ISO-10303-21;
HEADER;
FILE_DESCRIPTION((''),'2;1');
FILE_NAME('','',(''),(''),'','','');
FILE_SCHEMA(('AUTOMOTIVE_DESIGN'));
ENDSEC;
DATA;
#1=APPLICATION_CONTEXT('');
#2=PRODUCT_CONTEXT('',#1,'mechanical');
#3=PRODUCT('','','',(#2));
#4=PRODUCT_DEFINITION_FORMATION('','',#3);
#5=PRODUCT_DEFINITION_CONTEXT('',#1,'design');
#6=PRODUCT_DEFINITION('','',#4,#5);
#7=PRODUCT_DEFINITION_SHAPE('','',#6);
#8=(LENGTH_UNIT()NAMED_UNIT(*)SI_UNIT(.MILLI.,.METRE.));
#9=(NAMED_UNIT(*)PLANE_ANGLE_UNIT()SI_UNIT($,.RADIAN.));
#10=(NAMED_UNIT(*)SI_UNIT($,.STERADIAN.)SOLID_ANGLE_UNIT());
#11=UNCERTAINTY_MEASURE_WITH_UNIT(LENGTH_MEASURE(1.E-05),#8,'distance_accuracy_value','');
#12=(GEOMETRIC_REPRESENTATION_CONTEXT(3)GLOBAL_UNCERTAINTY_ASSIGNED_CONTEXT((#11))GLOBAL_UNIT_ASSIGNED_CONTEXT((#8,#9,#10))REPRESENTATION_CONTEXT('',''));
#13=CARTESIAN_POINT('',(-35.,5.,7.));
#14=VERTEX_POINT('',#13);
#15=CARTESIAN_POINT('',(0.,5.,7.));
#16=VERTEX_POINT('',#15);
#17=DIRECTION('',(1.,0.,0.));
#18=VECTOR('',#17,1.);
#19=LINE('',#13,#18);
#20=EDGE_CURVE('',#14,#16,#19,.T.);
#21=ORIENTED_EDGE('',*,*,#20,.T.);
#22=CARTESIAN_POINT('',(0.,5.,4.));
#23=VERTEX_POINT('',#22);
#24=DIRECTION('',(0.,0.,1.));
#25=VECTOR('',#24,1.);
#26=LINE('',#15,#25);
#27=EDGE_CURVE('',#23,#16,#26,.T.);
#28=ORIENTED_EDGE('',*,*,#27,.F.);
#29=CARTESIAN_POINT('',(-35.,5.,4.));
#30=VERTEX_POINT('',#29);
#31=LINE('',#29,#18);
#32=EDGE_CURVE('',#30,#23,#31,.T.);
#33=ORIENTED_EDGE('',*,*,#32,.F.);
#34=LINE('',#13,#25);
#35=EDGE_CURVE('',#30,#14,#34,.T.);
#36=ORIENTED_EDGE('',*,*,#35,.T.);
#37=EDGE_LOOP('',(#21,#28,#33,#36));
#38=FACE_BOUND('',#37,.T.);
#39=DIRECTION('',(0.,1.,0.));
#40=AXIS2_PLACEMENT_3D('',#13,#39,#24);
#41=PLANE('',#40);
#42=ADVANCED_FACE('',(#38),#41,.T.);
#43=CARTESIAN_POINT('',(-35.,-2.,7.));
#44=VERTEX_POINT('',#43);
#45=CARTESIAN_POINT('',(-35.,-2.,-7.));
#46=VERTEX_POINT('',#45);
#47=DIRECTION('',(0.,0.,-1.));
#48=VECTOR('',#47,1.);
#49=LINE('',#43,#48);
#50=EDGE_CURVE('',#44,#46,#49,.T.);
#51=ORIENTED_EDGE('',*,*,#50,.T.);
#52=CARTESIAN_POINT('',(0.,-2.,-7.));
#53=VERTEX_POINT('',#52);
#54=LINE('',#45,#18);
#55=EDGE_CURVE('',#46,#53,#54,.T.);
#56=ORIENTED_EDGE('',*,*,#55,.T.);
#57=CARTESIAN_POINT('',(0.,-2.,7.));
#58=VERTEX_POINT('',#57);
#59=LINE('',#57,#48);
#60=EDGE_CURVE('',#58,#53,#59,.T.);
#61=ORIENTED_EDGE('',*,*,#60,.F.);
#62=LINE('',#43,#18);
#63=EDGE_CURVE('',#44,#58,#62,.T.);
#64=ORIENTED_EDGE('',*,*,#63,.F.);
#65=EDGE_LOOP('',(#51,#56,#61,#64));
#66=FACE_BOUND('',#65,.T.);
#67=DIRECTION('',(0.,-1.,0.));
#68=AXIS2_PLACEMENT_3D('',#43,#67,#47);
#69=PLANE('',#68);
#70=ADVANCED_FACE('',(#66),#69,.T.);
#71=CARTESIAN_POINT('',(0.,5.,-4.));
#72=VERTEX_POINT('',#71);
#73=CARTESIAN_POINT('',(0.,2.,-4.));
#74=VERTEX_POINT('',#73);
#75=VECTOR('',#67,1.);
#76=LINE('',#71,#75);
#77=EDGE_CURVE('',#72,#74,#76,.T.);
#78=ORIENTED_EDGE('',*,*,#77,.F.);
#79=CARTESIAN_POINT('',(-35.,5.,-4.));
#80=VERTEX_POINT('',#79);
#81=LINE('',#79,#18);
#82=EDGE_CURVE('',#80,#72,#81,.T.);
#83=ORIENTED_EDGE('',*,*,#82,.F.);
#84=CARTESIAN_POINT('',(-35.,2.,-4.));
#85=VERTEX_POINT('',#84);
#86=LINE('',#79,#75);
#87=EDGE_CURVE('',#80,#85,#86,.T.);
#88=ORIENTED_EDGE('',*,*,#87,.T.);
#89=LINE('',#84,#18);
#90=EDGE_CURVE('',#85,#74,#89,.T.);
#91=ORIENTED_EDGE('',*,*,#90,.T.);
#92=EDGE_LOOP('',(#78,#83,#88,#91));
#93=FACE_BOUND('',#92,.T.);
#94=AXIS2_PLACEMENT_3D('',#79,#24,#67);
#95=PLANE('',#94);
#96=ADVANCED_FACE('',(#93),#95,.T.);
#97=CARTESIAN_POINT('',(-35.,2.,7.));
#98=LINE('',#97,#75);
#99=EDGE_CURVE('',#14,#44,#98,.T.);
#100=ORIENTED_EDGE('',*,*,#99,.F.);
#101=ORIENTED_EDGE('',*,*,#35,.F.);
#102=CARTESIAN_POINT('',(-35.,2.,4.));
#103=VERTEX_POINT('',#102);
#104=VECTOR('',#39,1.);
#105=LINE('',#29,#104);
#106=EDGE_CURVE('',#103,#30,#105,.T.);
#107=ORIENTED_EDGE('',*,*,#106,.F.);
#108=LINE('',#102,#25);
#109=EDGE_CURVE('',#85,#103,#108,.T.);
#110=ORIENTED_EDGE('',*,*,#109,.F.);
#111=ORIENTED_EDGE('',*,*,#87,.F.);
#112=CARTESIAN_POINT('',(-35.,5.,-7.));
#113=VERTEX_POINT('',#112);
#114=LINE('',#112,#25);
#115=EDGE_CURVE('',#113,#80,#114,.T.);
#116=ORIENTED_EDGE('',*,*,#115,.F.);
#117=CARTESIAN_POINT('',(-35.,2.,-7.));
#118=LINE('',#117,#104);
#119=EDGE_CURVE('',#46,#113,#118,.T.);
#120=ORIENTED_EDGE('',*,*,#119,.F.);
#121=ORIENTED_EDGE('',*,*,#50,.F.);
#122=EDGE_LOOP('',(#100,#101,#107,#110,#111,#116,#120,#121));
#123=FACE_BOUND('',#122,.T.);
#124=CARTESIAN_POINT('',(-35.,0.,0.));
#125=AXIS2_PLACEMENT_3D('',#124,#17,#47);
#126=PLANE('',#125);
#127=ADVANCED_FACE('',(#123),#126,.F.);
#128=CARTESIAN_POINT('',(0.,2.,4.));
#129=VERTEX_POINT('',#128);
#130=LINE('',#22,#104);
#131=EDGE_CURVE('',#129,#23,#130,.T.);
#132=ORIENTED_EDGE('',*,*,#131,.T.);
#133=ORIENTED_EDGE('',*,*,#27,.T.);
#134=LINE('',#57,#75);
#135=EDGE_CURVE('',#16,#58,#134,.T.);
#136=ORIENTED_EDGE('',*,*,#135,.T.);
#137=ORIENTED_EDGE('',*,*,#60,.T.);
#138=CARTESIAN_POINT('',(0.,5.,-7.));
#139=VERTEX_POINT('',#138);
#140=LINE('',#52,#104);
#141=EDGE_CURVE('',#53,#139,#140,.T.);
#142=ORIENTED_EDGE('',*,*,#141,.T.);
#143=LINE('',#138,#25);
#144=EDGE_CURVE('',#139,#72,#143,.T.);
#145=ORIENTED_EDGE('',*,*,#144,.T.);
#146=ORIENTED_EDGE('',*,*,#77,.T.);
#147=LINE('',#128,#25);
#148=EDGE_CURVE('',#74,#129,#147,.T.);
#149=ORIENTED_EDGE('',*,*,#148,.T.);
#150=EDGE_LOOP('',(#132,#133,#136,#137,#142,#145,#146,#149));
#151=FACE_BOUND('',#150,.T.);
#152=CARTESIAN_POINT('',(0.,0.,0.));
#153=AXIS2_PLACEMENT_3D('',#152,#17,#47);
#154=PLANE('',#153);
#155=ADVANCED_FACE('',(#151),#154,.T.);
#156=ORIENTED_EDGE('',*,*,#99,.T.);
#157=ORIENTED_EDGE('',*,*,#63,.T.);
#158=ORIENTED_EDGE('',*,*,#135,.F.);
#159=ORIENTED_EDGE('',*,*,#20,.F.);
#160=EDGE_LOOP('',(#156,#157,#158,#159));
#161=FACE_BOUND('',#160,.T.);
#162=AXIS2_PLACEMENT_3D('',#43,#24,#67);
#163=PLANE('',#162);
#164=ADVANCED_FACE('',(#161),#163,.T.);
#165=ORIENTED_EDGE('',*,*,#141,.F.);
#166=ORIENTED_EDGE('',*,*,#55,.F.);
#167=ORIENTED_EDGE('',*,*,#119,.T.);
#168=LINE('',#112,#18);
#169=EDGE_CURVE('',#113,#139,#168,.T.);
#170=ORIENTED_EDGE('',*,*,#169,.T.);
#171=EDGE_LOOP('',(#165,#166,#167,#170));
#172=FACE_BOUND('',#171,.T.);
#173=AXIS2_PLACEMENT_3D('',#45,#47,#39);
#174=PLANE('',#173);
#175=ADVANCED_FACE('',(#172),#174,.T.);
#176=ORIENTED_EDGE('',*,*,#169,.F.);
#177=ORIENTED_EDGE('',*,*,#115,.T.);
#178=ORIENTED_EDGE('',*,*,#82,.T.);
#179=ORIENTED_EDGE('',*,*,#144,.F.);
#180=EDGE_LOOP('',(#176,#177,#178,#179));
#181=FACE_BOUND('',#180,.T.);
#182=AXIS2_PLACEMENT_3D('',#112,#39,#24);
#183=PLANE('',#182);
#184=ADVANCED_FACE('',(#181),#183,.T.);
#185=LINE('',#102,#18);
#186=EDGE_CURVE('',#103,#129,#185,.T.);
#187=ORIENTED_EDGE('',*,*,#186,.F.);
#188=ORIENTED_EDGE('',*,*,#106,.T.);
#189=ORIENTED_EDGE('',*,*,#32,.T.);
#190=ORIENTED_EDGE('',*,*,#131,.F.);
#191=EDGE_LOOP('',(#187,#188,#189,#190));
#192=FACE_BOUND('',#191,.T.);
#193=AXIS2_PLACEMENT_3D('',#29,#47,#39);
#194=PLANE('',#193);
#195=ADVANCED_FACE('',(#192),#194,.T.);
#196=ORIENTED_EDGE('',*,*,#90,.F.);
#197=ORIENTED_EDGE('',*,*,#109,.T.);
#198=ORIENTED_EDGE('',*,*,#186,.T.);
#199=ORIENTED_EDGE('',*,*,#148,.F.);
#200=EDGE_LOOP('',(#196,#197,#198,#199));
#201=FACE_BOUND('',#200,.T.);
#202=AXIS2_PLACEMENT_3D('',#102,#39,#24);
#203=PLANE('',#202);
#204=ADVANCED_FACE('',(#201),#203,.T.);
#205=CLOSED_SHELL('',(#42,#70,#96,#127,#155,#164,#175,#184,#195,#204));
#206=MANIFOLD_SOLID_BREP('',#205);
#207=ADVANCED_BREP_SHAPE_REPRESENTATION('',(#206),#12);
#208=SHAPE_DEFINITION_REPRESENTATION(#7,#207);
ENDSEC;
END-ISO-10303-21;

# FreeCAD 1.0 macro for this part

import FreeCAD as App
import Part
import Sketcher
Q = App.Units.Quantity


def add_polygon(sketch, points):
    """Adds a closed chain of lines whose ends are joined by coincident constraints."""
    first, n = sketch.GeometryCount, len(points)
    for a, b in zip(points, points[1:] + points[:1]):
        sketch.addGeometry(Part.LineSegment(App.Vector(*a, 0), App.Vector(*b, 0)), False)
    for i in range(n):
        sketch.addConstraint(Sketcher.Constraint("Coincident", first + i, 2, first + (i + 1) % n, 1))

doc = App.newDocument("Part")
params = doc.addObject("Spreadsheet::Sheet", "Params")
for row, (alias, value) in enumerate([
    ("sketch1_width", "7 mm"),
    ("sketch1_width2", "3 mm"),
    ("sketch1_height", "14 mm"),
    ("pad1_length", "35 mm"),
], start=1):
    params.set(f"A{row}", alias)
    params.set(f"B{row}", "=" + value)
    params.setAlias(f"B{row}", alias)

body = doc.addObject("PartDesign::Body", "Body")

# Sketch on YZ plane
sketch1 = body.newObject("Sketcher::SketchObject", "Sketch")
sketch1.AttachmentSupport = (doc.getObject("YZ_Plane"), [""])
sketch1.MapMode = "FlatFace"
add_polygon(sketch1, [(5, 7), (-2, 7), (-2, -7), (5, -7), (5, -4), (2, -4), (2, 4), (5, 4)])  # lines 0-7
sketch1.addConstraint(Sketcher.Constraint("Horizontal", 0))
sketch1.addConstraint(Sketcher.Constraint("Vertical", 1))
sketch1.addConstraint(Sketcher.Constraint("Horizontal", 2))
sketch1.addConstraint(Sketcher.Constraint("Vertical", 3))
sketch1.addConstraint(Sketcher.Constraint("Horizontal", 4))
sketch1.addConstraint(Sketcher.Constraint("Vertical", 5))
sketch1.addConstraint(Sketcher.Constraint("Horizontal", 6))
sketch1.addConstraint(Sketcher.Constraint("Vertical", 7))
sketch1.addConstraint(Sketcher.Constraint("Symmetric", 3, 2, 6, 2, -1))
sketch1.addConstraint(Sketcher.Constraint("Equal", 6, 3))
sketch1.addConstraint(Sketcher.Constraint("Equal", 3, 7))
sketch1.addConstraint(Sketcher.Constraint("DistanceX", 0, 2, 0, 1, Q("7 mm")))
sketch1.addConstraint(Sketcher.Constraint("DistanceX", 4, 2, 4, 1, Q("3 mm")))
sketch1.addConstraint(Sketcher.Constraint("DistanceY", 1, 2, 1, 1, Q("14 mm")))
sketch1.addConstraint(Sketcher.Constraint("DistanceX", 0, 2, -1, 1, Q("2 mm")))
sketch1.setExpression("Constraints[19]", "Params.sketch1_width")
sketch1.setExpression("Constraints[20]", "Params.sketch1_width2")
sketch1.setExpression("Constraints[21]", "Params.sketch1_height")
pad1 = body.newObject("PartDesign::Pad", "Pad")
pad1.Profile = sketch1
pad1.setExpression("Length", "Params.pad1_length")
pad1.Reversed = True

doc.recompute()
